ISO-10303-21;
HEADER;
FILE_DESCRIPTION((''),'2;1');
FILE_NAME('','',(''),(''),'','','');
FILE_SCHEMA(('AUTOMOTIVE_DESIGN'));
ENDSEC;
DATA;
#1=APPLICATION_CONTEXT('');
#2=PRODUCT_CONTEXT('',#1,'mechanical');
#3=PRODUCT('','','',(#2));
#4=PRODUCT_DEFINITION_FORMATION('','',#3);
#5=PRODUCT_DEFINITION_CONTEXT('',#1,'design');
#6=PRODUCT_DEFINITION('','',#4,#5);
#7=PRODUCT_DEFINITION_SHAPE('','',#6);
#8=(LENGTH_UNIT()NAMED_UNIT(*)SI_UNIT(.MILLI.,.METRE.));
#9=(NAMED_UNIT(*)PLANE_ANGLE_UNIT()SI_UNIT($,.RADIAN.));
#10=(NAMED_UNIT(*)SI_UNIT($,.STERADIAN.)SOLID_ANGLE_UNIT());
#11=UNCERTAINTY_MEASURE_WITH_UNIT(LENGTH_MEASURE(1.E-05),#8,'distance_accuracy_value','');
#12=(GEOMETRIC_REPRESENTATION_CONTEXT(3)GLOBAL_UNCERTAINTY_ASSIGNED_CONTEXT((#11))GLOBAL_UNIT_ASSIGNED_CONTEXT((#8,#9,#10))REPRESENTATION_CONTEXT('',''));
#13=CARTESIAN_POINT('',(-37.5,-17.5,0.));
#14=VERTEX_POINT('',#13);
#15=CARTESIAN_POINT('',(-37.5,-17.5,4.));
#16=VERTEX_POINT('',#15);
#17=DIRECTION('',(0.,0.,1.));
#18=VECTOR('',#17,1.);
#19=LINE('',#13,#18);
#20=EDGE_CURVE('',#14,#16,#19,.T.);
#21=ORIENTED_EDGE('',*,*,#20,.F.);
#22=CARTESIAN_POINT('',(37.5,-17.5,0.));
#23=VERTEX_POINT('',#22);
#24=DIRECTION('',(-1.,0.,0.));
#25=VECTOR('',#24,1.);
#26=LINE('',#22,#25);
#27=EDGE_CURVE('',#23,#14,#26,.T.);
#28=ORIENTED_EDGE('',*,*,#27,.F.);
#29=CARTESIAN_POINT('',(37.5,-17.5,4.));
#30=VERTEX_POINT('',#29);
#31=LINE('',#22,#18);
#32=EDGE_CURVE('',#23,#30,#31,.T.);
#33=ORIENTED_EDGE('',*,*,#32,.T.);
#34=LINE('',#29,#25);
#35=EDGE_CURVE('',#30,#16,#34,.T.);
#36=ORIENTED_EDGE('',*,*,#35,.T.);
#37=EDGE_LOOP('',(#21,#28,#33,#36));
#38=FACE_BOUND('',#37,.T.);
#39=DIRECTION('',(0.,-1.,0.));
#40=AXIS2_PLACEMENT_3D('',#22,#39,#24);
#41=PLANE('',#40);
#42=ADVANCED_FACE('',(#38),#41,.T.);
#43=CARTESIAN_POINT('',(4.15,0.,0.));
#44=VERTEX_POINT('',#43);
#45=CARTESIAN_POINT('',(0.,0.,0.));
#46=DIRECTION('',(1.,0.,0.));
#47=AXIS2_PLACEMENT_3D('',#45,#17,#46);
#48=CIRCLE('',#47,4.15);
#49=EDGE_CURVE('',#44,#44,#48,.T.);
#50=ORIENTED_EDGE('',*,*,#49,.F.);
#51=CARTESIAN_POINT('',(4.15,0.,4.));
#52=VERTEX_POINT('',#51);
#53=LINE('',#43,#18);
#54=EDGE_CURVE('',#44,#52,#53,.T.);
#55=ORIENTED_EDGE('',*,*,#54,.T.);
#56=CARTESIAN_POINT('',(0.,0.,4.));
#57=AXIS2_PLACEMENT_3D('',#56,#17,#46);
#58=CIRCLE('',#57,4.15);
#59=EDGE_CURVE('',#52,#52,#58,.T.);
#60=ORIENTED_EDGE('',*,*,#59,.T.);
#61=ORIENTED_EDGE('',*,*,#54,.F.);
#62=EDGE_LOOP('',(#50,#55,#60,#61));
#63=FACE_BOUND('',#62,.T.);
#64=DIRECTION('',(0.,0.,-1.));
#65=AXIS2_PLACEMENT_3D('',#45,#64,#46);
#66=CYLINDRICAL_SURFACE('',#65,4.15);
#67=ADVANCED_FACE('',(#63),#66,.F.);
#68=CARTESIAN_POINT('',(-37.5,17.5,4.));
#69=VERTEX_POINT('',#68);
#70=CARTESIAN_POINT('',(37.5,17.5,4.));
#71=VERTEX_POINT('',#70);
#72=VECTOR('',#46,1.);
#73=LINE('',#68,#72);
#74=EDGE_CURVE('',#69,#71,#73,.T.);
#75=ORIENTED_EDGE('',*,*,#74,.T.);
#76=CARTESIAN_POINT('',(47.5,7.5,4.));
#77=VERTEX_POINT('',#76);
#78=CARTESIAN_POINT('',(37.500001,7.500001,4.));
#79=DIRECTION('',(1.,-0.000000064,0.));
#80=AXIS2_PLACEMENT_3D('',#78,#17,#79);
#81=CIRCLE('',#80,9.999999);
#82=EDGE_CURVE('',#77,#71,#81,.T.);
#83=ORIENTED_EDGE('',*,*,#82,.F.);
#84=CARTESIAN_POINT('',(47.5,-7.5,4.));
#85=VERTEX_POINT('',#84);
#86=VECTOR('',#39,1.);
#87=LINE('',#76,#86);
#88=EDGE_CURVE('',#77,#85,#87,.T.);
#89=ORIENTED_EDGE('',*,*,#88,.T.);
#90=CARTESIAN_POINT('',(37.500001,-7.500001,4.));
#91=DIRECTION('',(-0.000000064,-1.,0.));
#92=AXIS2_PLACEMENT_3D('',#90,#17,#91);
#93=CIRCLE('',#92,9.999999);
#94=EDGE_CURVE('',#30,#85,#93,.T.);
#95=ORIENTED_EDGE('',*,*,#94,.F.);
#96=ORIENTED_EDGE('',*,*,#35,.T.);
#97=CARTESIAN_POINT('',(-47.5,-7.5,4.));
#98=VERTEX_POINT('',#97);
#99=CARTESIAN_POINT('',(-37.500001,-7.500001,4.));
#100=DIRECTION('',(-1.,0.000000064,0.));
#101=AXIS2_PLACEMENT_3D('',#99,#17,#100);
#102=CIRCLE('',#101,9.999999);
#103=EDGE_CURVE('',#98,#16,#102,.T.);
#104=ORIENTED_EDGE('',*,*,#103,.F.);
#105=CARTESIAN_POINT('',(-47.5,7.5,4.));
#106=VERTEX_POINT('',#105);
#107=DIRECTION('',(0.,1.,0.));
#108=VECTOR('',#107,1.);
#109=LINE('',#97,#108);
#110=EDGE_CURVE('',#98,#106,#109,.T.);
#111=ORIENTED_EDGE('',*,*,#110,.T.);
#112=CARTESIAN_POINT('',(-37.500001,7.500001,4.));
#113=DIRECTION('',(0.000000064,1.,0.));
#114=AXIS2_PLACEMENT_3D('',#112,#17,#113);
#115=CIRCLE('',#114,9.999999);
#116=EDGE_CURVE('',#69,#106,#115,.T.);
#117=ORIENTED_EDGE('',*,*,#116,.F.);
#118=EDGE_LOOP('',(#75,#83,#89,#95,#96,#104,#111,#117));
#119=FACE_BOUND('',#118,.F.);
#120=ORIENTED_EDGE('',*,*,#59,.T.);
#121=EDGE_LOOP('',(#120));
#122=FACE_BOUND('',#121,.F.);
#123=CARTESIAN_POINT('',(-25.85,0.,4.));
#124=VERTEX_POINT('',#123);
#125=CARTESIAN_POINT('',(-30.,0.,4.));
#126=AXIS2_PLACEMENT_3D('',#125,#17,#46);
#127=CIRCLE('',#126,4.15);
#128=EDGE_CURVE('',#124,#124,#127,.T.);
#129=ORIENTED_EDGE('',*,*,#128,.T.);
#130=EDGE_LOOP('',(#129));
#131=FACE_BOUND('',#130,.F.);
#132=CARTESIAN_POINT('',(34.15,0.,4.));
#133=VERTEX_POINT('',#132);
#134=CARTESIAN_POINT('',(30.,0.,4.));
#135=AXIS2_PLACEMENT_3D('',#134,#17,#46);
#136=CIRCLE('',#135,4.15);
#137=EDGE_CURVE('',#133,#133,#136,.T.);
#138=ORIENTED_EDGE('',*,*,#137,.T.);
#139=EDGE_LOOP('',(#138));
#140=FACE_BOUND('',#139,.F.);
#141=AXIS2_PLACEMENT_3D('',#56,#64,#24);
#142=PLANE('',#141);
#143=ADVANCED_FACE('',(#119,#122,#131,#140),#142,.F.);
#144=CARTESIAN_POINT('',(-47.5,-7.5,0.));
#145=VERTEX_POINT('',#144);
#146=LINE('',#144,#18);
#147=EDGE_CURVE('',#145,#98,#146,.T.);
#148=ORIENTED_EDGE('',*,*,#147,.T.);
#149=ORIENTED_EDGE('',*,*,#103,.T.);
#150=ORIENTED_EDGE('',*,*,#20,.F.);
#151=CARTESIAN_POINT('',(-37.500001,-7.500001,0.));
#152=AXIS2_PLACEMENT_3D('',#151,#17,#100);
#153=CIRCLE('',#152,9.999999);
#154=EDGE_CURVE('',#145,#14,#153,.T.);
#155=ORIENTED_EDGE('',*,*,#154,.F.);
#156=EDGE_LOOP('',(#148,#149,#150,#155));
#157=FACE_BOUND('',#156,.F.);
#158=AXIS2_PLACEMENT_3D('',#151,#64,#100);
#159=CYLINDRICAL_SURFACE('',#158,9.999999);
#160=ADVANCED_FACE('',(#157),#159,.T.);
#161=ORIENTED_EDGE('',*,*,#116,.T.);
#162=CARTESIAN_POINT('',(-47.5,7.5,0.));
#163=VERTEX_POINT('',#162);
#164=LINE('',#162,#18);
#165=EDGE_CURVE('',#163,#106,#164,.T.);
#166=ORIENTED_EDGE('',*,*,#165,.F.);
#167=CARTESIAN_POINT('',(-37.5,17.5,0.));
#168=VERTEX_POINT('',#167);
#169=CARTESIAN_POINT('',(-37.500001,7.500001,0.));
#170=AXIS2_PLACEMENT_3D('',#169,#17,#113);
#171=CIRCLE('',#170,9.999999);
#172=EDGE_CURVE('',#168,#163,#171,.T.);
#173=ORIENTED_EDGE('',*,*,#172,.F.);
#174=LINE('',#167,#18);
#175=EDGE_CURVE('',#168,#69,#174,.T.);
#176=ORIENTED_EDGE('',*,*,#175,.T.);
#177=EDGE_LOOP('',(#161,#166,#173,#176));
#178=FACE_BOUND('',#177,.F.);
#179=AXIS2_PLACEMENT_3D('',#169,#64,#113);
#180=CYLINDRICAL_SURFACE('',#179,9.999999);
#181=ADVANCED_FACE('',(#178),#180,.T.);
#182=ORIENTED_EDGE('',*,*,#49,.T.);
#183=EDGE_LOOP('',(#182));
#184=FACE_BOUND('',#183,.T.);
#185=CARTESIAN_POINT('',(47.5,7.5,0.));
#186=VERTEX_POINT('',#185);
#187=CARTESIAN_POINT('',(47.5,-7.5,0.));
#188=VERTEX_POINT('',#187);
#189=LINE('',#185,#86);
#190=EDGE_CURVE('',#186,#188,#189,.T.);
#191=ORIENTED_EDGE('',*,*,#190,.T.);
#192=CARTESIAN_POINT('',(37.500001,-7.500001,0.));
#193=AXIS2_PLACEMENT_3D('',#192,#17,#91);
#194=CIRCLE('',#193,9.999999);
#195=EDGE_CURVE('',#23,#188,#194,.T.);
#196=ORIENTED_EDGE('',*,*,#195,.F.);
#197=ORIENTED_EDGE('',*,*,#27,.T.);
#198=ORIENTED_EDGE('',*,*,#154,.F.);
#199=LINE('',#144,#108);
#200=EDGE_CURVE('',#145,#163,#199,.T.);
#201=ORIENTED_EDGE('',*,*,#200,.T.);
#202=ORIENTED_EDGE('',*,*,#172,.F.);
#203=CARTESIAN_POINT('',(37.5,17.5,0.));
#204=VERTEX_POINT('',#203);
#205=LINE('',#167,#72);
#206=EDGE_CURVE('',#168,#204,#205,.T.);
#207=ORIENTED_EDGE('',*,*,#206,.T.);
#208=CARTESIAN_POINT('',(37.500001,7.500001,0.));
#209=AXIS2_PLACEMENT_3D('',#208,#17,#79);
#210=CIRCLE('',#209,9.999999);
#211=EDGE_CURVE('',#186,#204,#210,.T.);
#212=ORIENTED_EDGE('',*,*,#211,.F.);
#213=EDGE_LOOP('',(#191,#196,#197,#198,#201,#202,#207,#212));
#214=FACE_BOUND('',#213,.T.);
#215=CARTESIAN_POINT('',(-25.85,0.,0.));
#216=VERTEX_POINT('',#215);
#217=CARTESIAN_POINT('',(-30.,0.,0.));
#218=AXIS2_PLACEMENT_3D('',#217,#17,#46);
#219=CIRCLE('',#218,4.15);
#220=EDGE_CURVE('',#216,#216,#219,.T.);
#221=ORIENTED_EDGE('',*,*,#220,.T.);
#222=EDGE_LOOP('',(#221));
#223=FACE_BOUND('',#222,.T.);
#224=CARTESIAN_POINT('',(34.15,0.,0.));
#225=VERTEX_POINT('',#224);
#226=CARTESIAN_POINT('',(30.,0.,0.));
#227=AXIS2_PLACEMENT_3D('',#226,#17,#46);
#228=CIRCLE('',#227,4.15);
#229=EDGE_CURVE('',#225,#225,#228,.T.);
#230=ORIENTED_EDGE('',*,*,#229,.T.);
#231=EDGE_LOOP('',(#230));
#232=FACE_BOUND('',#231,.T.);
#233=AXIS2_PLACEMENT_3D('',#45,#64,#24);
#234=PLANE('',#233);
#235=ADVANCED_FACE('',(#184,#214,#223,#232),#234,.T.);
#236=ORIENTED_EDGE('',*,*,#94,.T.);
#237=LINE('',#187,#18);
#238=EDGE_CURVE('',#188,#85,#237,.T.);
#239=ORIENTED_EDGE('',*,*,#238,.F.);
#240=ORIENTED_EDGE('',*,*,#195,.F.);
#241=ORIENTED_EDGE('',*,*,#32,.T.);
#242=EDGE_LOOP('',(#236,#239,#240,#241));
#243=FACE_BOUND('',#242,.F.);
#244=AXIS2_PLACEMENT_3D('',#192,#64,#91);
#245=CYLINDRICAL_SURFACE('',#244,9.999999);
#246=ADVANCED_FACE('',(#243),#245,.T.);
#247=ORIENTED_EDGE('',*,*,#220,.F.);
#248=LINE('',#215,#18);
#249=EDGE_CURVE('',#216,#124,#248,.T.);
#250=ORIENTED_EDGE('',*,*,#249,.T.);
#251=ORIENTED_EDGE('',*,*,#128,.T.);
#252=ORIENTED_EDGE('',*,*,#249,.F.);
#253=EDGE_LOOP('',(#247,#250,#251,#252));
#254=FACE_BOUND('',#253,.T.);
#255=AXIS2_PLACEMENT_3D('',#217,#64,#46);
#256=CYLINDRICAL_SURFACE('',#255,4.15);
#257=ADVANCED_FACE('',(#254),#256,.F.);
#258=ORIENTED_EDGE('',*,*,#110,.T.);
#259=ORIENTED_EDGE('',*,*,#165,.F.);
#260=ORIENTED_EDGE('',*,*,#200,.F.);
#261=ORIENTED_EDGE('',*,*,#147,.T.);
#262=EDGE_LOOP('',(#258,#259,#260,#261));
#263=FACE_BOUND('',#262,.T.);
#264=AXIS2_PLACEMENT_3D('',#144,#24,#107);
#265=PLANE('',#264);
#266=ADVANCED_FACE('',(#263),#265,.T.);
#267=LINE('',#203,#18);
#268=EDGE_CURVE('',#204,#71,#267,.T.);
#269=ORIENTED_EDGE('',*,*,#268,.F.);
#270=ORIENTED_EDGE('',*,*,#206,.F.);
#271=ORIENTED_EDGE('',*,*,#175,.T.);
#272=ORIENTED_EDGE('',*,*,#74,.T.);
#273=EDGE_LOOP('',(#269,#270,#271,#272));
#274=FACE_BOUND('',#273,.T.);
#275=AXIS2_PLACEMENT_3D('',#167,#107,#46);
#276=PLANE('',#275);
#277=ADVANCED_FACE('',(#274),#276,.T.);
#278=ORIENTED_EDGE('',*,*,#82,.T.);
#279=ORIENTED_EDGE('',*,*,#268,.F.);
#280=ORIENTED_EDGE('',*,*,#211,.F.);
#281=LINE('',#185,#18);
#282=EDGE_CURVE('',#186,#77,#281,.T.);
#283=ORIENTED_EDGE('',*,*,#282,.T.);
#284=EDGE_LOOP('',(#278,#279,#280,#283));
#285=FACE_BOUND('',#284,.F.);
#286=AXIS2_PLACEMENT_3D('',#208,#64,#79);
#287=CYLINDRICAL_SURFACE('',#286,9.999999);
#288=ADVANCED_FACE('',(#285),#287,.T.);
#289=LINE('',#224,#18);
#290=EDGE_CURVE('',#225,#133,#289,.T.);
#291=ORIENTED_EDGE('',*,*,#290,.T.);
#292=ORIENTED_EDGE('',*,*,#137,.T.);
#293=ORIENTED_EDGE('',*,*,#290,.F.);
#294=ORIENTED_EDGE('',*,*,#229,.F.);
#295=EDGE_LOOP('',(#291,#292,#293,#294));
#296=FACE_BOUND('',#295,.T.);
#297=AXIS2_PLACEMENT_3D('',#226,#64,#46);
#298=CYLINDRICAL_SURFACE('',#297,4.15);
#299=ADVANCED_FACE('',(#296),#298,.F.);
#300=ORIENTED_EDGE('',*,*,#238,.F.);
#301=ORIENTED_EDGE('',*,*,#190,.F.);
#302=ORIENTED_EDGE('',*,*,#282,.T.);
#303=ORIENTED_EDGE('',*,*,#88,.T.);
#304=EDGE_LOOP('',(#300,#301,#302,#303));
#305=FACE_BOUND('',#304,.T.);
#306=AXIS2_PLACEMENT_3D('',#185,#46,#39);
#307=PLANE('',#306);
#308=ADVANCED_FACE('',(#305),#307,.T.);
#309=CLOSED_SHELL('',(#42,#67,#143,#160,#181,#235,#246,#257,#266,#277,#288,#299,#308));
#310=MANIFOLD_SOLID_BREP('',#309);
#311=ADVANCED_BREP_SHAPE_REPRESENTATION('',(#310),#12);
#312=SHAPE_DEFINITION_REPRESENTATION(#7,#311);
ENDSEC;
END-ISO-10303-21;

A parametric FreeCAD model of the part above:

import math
import FreeCAD as App
import Part
import Sketcher
from FreeCAD import Vector
Q = App.Units.Quantity

doc = App.newDocument("Part")
body = doc.addObject("PartDesign::Body", "Body")

# Sketch on XY plane
sketch1 = body.newObject("Sketcher::SketchObject", "Sketch")
sketch1.AttachmentSupport = (doc.getObject("XY_Plane"), [""])
sketch1.MapMode = "FlatFace"
sketch1.addGeometry([
    Part.LineSegment(Vector(37.5, 17.5, 0), Vector(-37.5, 17.5, 0)),  # 0
    Part.ArcOfCircle(Part.Circle(Vector(-37.5, 7.5, 0), Vector(0, 0, 1), 10), math.radians(90), math.radians(180)),  # 1
    Part.LineSegment(Vector(-47.5, 7.5, 0), Vector(-47.5, -7.5, 0)),  # 2
    Part.ArcOfCircle(Part.Circle(Vector(-37.5, -7.5, 0), Vector(0, 0, 1), 10), math.radians(180), math.radians(270)),  # 3
    Part.LineSegment(Vector(-37.5, -17.5, 0), Vector(37.5, -17.5, 0)),  # 4
    Part.ArcOfCircle(Part.Circle(Vector(37.5, -7.5, 0), Vector(0, 0, 1), 10), math.radians(-90), math.radians(0)),  # 5
    Part.LineSegment(Vector(47.5, -7.5, 0), Vector(47.5, 7.5, 0)),  # 6
    Part.ArcOfCircle(Part.Circle(Vector(37.5, 7.5, 0), Vector(0, 0, 1), 10), math.radians(0), math.radians(90)),  # 7
    Part.Circle(Vector(30, 0, 0), Vector(0, 0, 1), 4.2),  # 8
    Part.Circle(Vector(0, 0, 0), Vector(0, 0, 1), 4.2),  # 9
    Part.Circle(Vector(-30, 0, 0), Vector(0, 0, 1), 4.2),  # 10
], False)
sketch1.addConstraint([
    Sketcher.Constraint("Tangent", 0, 2, 1, 1),
    Sketcher.Constraint("Tangent", 1, 2, 2, 1),
    Sketcher.Constraint("Tangent", 2, 2, 3, 1),
    Sketcher.Constraint("Tangent", 3, 2, 4, 1),
    Sketcher.Constraint("Tangent", 4, 2, 5, 1),
    Sketcher.Constraint("Tangent", 5, 2, 6, 1),
    Sketcher.Constraint("Tangent", 6, 2, 7, 1),
    Sketcher.Constraint("Tangent", 7, 2, 0, 1),
    Sketcher.Constraint("Horizontal", 0),
    Sketcher.Constraint("Vertical", 2),
    Sketcher.Constraint("Horizontal", 4),
    Sketcher.Constraint("Vertical", 6),
    Sketcher.Constraint("Coincident", 9, 3, -1, 1),
    Sketcher.Constraint("Equal", 1, 3),
    Sketcher.Constraint("Equal", 3, 5),
    Sketcher.Constraint("Equal", 5, 7),
    Sketcher.Constraint("Equal", 8, 9),
    Sketcher.Constraint("Equal", 9, 10),
    Sketcher.Constraint("Symmetric", 1, 3, 5, 3, -1, 1),
    Sketcher.Constraint("Symmetric", 8, 3, 10, 3, -1, 1),
    Sketcher.Constraint("PointOnObject", 8, 3, -1),
    Sketcher.Constraint("Radius", 1, Q("9.999999 mm")),
    Sketcher.Constraint("Diameter", 8, Q("8.3 mm")),
    Sketcher.Constraint("DistanceX", 0, 2, 0, 1, Q("75 mm")),
    Sketcher.Constraint("DistanceY", 2, 2, 2, 1, Q("15 mm")),
    Sketcher.Constraint("DistanceX", -1, 1, 8, 3, Q("30 mm")),
])
pad1 = body.newObject("PartDesign::Pad", "Pad")
pad1.Profile = sketch1
pad1.Length = 4

doc.recompute()
